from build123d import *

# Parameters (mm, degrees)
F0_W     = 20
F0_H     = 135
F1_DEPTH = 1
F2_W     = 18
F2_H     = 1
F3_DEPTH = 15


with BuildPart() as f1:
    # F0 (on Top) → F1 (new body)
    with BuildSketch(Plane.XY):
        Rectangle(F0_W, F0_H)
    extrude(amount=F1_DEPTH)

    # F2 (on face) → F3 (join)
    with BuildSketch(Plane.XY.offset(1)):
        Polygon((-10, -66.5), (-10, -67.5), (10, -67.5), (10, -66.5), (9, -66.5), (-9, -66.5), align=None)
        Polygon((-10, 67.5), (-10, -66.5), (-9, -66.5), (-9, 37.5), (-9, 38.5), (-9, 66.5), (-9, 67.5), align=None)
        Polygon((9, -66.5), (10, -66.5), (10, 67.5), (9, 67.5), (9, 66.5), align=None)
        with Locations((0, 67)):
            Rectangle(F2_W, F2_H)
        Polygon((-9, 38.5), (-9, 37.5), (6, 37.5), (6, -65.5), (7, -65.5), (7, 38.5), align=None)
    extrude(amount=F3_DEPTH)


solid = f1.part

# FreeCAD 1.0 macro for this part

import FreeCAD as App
import Part
import Sketcher
Q = App.Units.Quantity


def add_polygon(sketch, points):
    """Adds a closed chain of lines whose ends are joined by coincident constraints."""
    first, n = sketch.GeometryCount, len(points)
    for a, b in zip(points, points[1:] + points[:1]):
        sketch.addGeometry(Part.LineSegment(App.Vector(*a, 0), App.Vector(*b, 0)), False)
    for i in range(n):
        sketch.addConstraint(Sketcher.Constraint("Coincident", first + i, 2, first + (i + 1) % n, 1))

doc = App.newDocument("Part")
body = doc.addObject("PartDesign::Body", "Body")

# Sketch on XY plane
sketch1 = doc.addObject("Sketcher::SketchObject", "Sketch")
body.addObject(sketch1)
sketch1.AttachmentSupport = (doc.XY_Plane, [""])
sketch1.MapMode = "FlatFace"
add_polygon(sketch1, [(-10, 68), (-10, -68), (10, -68), (10, 68)])  # lines 0-3
sketch1.addConstraint([
    Sketcher.Constraint("Vertical", 0),
    Sketcher.Constraint("Horizontal", 1),
    Sketcher.Constraint("Vertical", 2),
    Sketcher.Constraint("Horizontal", 3),
    Sketcher.Constraint("Symmetric", 0, 2, 2, 2, -1, 1),
    Sketcher.Constraint("DistanceX", 1, 1, 1, 2, Q("20 mm")),
    Sketcher.Constraint("DistanceY", 0, 2, 0, 1, Q("135 mm")),
])
pad1 = doc.addObject("PartDesign::Pad", "Pad")
body.addObject(pad1)
pad1.Profile = sketch1
pad1.Length = 1

# Sketch on XY plane
sketch2 = doc.addObject("Sketcher::SketchObject", "Sketch001")
body.addObject(sketch2)
sketch2.AttachmentSupport = (doc.XY_Plane, [""])
sketch2.MapMode = "FlatFace"
sketch2.AttachmentOffset = App.Placement(App.Vector(0, 0, 1), App.Rotation())
add_polygon(sketch2, [(-10, -67.5), (10, -67.5), (10, 67.5), (-10, 67.5)])  # lines 0-3
add_polygon(sketch2, [(9, 66.5), (9, -66.5), (-9, -66.5), (-9, 37.5), (6, 37.5), (6, -65.5), (7, -65.5), (7, 38.5), (-9, 38.5), (-9, 66.5)])  # lines 4-13
sketch2.addConstraint([
    Sketcher.Constraint("Horizontal", 0),
    Sketcher.Constraint("Vertical", 1),
    Sketcher.Constraint("Horizontal", 2),
    Sketcher.Constraint("Vertical", 3),
    Sketcher.Constraint("Vertical", 4),
    Sketcher.Constraint("Horizontal", 5),
    Sketcher.Constraint("Vertical", 6),
    Sketcher.Constraint("Horizontal", 7),
    Sketcher.Constraint("Vertical", 8),
    Sketcher.Constraint("Horizontal", 9),
    Sketcher.Constraint("Vertical", 10),
    Sketcher.Constraint("Horizontal", 11),
    Sketcher.Constraint("Vertical", 12),
    Sketcher.Constraint("Horizontal", 13),
    Sketcher.Constraint("Symmetric", 0, 2, 2, 2, -1, 1),
    Sketcher.Constraint("Symmetric", 4, 2, 12, 2, -1, 1),
    Sketcher.Constraint("Vertical", 6, 2, 11, 2),
    Sketcher.Constraint("Equal", 6, 10),
    Sketcher.Constraint("DistanceX", 0, 1, 0, 2, Q("20 mm")),
    Sketcher.Constraint("DistanceX", 5, 2, 5, 1, Q("18 mm")),
    Sketcher.Constraint("DistanceX", 7, 1, 7, 2, Q("15 mm")),
    Sketcher.Constraint("DistanceX", 9, 1, 9, 2, Q("1 mm")),
    Sketcher.Constraint("DistanceY", 1, 1, 1, 2, Q("135 mm")),
    Sketcher.Constraint("DistanceY", 4, 2, 4, 1, Q("133 mm")),
    Sketcher.Constraint("DistanceY", 6, 1, 6, 2, Q("104 mm")),
    Sketcher.Constraint("DistanceY", 8, 2, 8, 1, Q("103 mm")),
])
pad2 = doc.addObject("PartDesign::Pad", "Pad001")
body.addObject(pad2)
pad2.Profile = sketch2
pad2.Length = 15

doc.recompute()
